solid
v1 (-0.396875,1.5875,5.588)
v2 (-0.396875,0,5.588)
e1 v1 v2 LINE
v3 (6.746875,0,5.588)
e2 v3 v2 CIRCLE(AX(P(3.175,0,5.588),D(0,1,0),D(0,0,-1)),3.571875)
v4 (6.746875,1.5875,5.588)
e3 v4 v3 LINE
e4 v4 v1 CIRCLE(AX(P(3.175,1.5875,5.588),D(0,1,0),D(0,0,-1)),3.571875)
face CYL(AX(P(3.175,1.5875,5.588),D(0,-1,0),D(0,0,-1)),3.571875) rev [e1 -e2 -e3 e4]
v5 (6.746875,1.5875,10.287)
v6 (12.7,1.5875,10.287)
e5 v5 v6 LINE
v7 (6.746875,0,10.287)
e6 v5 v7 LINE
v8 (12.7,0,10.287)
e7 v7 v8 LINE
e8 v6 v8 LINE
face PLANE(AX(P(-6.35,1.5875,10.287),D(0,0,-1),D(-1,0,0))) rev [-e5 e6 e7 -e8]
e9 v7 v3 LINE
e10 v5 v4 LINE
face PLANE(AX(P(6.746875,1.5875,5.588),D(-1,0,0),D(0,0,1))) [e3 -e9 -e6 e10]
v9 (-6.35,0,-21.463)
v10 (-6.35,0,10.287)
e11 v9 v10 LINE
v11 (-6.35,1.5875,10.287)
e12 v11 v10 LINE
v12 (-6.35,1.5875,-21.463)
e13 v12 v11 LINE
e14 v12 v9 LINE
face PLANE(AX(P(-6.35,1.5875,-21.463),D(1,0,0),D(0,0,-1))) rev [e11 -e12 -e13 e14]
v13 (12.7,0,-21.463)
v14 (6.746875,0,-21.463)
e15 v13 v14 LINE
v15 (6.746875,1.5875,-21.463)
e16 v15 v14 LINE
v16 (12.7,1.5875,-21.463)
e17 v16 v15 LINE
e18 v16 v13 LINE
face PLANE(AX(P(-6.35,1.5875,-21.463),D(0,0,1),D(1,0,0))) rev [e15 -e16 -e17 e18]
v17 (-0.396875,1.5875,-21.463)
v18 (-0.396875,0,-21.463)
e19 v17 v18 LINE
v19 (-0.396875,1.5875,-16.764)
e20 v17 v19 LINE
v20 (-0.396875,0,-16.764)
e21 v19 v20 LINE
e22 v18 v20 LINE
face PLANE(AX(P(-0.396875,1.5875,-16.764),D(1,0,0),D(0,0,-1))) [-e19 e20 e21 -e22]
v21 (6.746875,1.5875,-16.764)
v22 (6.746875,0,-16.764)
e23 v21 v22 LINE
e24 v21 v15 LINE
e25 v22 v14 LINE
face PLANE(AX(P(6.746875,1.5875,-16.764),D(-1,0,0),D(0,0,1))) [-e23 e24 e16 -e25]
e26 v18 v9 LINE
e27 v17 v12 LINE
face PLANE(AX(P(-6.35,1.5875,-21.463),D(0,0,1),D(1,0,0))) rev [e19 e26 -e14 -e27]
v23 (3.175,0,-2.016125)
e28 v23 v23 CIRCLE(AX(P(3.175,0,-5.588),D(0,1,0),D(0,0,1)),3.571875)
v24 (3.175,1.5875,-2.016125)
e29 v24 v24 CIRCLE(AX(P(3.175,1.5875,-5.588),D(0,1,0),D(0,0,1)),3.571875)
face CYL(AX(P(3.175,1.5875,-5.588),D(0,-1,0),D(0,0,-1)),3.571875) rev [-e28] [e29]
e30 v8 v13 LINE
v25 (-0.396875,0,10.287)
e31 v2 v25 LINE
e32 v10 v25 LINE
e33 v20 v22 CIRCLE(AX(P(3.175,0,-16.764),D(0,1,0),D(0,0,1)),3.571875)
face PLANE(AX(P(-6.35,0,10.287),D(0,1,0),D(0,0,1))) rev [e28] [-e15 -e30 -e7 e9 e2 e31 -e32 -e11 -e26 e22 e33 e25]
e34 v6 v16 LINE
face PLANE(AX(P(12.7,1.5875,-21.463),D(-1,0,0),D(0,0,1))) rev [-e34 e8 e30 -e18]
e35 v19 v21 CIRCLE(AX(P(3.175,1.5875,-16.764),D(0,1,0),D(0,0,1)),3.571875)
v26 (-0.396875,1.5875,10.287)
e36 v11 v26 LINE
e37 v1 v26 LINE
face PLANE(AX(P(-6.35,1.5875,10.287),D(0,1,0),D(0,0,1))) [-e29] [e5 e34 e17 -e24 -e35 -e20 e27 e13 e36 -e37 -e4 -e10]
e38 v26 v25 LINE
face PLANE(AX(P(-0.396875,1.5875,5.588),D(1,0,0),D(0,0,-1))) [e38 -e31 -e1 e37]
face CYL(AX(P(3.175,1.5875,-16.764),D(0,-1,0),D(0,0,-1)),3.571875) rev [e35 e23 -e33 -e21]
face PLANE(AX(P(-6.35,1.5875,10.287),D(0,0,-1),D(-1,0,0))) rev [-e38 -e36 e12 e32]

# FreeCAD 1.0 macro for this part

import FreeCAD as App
import Part
import Sketcher
from FreeCAD import Vector
Q = App.Units.Quantity


def add_polygon(sketch, points):
    """Adds a closed chain of lines whose ends are joined by coincident constraints."""
    first, n = sketch.GeometryCount, len(points)
    for a, b in zip(points, points[1:] + points[:1]):
        sketch.addGeometry(Part.LineSegment(App.Vector(*a, 0), App.Vector(*b, 0)), False)
    for i in range(n):
        sketch.addConstraint(Sketcher.Constraint("Coincident", first + i, 2, first + (i + 1) % n, 1))

doc = App.newDocument("Part")
body = doc.addObject("PartDesign::Body", "Body")

# Sketch on XZ plane
sketch1 = body.newObject("Sketcher::SketchObject", "Sketch")
sketch1.AttachmentSupport = (doc.getObject("XZ_Plane"), [""])
sketch1.MapMode = "FlatFace"
add_polygon(sketch1, [(-6, -21), (-6, 10), (13, 10), (13, -21)])  # lines 0-3
sketch1.addConstraint([
    Sketcher.Constraint("Vertical", 0),
    Sketcher.Constraint("Horizontal", 1),
    Sketcher.Constraint("Vertical", 2),
    Sketcher.Constraint("Horizontal", 3),
    Sketcher.Constraint("DistanceX", 1, 1, 1, 2, Q("0.75 in")),
    Sketcher.Constraint("DistanceY", 0, 1, 0, 2, Q("1.25 in")),
    Sketcher.Constraint("DistanceX", -1, 1, 1, 2, Q("0.5 in")),
    Sketcher.Constraint("DistanceY", -1, 1, 0, 2, Q("0.405 in")),
])
pad1 = body.newObject("PartDesign::Pad", "Pad")
pad1.Profile = sketch1
pad1.Length = Q("0.0625 in")
pad1.Reversed = True

# Sketch on XZ plane
sketch2 = body.newObject("Sketcher::SketchObject", "Sketch001")
sketch2.AttachmentSupport = (doc.getObject("XZ_Plane"), [""])
sketch2.MapMode = "FlatFace"
sketch2.addGeometry(Part.Circle(Vector(3.2, -5.6, 0), Vector(0, 0, 1), 3.6), False)
sketch2.addConstraint([
    Sketcher.Constraint("Diameter", 0, Q("0.28125 in")),
    Sketcher.Constraint("DistanceY", 0, 3, -1, 1, Q("0.22 in")),
    Sketcher.Constraint("DistanceX", -1, 1, 0, 3, Q("0.125 in")),
])
pocket1 = body.newObject("PartDesign::Pocket", "Pocket")
pocket1.Profile = sketch2
pocket1.Type = "ThroughAll"

# Sketch on XZ plane
sketch3 = body.newObject("Sketcher::SketchObject", "Sketch002")
sketch3.AttachmentSupport = (doc.getObject("XZ_Plane"), [""])
sketch3.MapMode = "FlatFace"
sketch3.addGeometry(Part.Circle(Vector(3.2, -16.8, 0), Vector(0, 0, 1), 3.6), False)
sketch3.addConstraint([
    Sketcher.Constraint("Diameter", 0, Q("0.28125 in")),
    Sketcher.Constraint("DistanceY", 0, 3, -1, 1, Q("0.66 in")),
    Sketcher.Constraint("DistanceX", -1, 1, 0, 3, Q("0.125 in")),
])
pocket2 = body.newObject("PartDesign::Pocket", "Pocket001")
pocket2.Profile = sketch3
pocket2.Type = "ThroughAll"
doc.recompute()

datumline = body.newObject("PartDesign::Line", "DatumLine")
datumline.Placement = App.Placement(Vector(3.175, 0, -5.588), App.Rotation(Vector(0, 0, 1), Vector(0, 1, 0)))
polarpattern = body.newObject("PartDesign::PolarPattern", "PolarPattern")
polarpattern.Originals = [pocket2]
polarpattern.Axis = (datumline, [""])
polarpattern.Angle = 360
polarpattern.Occurrences = 2
body.Tip = polarpattern

# Sketch on XZ plane
sketch4 = body.newObject("Sketcher::SketchObject", "Sketch003")
sketch4.AttachmentSupport = (doc.getObject("XZ_Plane"), [""])
sketch4.MapMode = "FlatFace"
add_polygon(sketch4, [(-0.4, 5.6), (-0.4, 10.3), (6.7, 10.3), (6.7, 5.6)])  # lines 0-3
sketch4.addConstraint([
    Sketcher.Constraint("Vertical", 0),
    Sketcher.Constraint("Horizontal", 1),
    Sketcher.Constraint("Vertical", 2),
    Sketcher.Constraint("Horizontal", 3),
    Sketcher.Constraint("DistanceX", 1, 1, 1, 2, Q("0.28125 in")),
    Sketcher.Constraint("DistanceY", 0, 1, 0, 2, Q("0.185 in")),
    Sketcher.Constraint("DistanceY", -1, 1, 2, 2, Q("0.22 in")),
    Sketcher.Constraint("DistanceX", 0, 2, -1, 1, Q("0.015625 in")),
])
pocket3 = body.newObject("PartDesign::Pocket", "Pocket002")
pocket3.Profile = sketch4
pocket3.Type = "ThroughAll"
doc.recompute()

datumline2 = body.newObject("PartDesign::Line", "DatumLine001")
datumline2.Placement = App.Placement(Vector(3.175, 0, -5.588), App.Rotation(Vector(0, 0, 1), Vector(0, -1, 0)))
polarpattern2 = body.newObject("PartDesign::PolarPattern", "PolarPattern001")
polarpattern2.Originals = [pocket3]
polarpattern2.Axis = (datumline2, [""])
polarpattern2.Angle = 360
polarpattern2.Occurrences = 2
body.Tip = polarpattern2

doc.recompute()
